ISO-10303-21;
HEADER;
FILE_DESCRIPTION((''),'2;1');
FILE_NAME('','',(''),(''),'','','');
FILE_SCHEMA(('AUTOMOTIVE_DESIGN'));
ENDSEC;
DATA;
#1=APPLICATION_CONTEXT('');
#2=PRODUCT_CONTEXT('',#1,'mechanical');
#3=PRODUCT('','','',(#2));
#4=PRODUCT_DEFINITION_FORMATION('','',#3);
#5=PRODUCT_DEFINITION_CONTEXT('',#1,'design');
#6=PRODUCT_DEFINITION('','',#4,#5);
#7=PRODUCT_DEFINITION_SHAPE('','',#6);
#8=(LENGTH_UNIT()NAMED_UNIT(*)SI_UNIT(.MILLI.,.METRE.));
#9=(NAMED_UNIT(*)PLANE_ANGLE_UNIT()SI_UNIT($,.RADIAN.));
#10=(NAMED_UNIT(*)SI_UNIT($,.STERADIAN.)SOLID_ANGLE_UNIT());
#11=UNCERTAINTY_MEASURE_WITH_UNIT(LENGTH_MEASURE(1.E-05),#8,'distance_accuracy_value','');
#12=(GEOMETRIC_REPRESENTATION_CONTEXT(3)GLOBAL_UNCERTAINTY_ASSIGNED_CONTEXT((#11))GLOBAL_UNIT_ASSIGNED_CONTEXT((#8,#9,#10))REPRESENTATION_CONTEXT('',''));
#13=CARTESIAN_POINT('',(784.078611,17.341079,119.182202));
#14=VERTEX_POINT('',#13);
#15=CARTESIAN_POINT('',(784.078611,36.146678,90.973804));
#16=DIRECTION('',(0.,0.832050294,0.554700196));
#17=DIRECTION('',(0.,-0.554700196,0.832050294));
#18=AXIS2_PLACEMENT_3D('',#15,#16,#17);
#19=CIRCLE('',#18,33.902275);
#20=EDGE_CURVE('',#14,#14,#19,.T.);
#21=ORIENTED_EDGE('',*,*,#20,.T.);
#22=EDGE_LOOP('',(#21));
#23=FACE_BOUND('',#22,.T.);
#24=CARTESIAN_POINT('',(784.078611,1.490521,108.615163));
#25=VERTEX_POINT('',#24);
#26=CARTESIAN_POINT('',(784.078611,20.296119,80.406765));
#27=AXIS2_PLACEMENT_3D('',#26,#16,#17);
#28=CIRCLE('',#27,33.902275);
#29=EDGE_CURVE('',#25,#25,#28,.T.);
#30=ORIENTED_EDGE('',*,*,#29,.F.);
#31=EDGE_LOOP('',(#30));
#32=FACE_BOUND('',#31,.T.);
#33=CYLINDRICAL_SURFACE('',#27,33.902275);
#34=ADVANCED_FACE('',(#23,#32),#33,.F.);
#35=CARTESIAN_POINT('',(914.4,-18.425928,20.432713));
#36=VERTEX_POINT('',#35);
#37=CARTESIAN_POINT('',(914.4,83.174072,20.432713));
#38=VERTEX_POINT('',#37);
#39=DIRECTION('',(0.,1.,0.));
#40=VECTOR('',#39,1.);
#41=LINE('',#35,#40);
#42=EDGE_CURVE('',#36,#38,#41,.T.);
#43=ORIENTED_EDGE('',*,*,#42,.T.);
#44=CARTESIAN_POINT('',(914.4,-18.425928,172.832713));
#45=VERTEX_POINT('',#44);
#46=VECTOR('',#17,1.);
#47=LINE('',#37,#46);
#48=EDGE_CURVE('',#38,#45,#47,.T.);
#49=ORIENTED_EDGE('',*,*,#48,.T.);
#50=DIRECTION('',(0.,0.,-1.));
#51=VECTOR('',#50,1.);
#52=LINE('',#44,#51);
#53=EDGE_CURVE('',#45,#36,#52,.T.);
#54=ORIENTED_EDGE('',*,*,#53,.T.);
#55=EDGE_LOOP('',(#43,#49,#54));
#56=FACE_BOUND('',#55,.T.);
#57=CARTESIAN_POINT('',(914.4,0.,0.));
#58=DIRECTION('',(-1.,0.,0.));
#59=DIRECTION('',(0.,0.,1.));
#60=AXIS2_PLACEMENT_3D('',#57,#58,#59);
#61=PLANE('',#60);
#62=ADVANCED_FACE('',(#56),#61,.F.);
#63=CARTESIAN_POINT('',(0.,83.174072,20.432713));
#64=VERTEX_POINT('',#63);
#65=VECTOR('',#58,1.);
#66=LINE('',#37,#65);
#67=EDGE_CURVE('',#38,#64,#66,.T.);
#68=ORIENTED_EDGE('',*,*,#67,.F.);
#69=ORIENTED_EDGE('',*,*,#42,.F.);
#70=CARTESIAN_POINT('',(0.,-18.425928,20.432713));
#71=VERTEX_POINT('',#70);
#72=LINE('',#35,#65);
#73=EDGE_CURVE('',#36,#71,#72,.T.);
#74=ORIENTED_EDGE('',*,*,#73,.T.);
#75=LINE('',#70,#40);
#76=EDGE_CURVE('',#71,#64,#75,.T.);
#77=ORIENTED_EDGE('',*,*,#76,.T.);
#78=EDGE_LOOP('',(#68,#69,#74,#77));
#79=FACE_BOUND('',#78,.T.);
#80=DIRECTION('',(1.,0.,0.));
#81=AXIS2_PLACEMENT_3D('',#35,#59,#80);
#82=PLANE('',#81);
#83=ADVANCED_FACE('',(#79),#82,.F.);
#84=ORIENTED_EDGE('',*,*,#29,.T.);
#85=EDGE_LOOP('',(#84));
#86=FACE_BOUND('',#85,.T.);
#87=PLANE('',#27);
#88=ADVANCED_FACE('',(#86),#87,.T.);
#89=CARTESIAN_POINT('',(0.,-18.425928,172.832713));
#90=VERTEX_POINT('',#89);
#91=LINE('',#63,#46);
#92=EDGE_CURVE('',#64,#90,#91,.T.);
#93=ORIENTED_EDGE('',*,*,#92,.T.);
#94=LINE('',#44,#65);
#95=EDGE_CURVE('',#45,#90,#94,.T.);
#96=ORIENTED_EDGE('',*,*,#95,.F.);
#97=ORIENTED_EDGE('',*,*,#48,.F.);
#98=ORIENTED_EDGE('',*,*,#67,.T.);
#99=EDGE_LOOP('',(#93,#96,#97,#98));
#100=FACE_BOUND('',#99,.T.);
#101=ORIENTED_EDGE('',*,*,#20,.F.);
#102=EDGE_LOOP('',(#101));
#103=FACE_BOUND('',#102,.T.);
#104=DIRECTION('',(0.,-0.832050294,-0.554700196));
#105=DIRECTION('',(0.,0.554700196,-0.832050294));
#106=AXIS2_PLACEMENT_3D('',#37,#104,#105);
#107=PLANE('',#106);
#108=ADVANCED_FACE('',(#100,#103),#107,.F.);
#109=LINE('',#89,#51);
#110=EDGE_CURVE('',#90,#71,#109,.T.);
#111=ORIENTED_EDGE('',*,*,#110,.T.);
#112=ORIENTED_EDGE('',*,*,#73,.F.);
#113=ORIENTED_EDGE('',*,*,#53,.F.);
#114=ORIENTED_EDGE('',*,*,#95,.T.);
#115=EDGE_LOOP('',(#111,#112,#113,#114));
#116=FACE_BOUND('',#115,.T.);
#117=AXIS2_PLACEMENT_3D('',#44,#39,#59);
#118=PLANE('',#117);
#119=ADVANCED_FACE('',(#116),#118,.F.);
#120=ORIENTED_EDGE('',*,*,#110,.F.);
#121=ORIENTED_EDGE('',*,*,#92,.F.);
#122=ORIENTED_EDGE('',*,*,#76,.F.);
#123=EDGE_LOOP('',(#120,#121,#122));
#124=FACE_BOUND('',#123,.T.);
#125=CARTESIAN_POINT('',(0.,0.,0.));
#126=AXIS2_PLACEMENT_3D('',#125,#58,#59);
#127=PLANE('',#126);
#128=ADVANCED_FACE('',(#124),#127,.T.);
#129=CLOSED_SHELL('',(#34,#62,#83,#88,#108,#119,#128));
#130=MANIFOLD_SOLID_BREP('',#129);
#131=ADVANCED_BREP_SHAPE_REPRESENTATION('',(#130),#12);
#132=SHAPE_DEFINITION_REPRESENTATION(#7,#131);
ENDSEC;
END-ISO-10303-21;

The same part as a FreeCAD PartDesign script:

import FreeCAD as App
import Part
import Sketcher
from FreeCAD import Vector
Q = App.Units.Quantity


def add_polygon(sketch, points):
    """Adds a closed chain of lines whose ends are joined by coincident constraints."""
    first, n = sketch.GeometryCount, len(points)
    for a, b in zip(points, points[1:] + points[:1]):
        sketch.addGeometry(Part.LineSegment(App.Vector(*a, 0), App.Vector(*b, 0)), False)
    for i in range(n):
        sketch.addConstraint(Sketcher.Constraint("Coincident", first + i, 2, first + (i + 1) % n, 1))

doc = App.newDocument("Part")
body = doc.addObject("PartDesign::Body", "Body")

sketch1 = body.newObject("Sketcher::SketchObject", "Sketch")
sketch1.AttachmentSupport = (doc.getObject("YZ_Plane"), [""])
sketch1.MapMode = "FlatFace"
add_polygon(sketch1, [(83, 20), (-18, 173), (-18, 20)])
sketch1.addConstraint(Sketcher.Constraint("Vertical", 1))
sketch1.addConstraint(Sketcher.Constraint("Horizontal", 2))
sketch1.addConstraint(Sketcher.Constraint("DistanceX", 2, 1, 2, 2, Q("4 in")))
sketch1.addConstraint(Sketcher.Constraint("DistanceY", 1, 2, 1, 1, Q("6 in")))
sketch1.addConstraint(Sketcher.Constraint("DistanceX", 0, 2, -1, 1, Q("18.425928 mm")))
sketch1.addConstraint(Sketcher.Constraint("DistanceY", -1, 1, 0, 2, Q("172.832713 mm")))
pad1 = body.newObject("PartDesign::Pad", "Pad")
pad1.Profile = sketch1
pad1.Length = Q("36 in")

sketch2 = body.newObject("Sketcher::SketchObject", "Sketch001")
sketch2.Placement = App.Placement(Vector(0, 67.012532, 44.675022), App.Rotation(Vector(1, 0, 0), Vector(0, 0.554700196, -0.832050294), Vector(0, 0.832050294, 0.554700196), "ZXY"))
sketch2.addGeometry(Part.Circle(Vector(784, -56, 0), Vector(0, 0, 1), 34), False)
sketch2.addConstraint(Sketcher.Constraint("Diameter", 0, Q("67.804551 mm")))
sketch2.addConstraint(Sketcher.Constraint("DistanceX", -1, 1, 0, 3, Q("784.078611 mm")))
sketch2.addConstraint(Sketcher.Constraint("DistanceY", 0, 3, -1, 1, Q("55.644211 mm")))
pocket1 = body.newObject("PartDesign::Pocket", "Pocket")
pocket1.Profile = sketch2
pocket1.Length = Q("0.75 in")

doc.recompute()
